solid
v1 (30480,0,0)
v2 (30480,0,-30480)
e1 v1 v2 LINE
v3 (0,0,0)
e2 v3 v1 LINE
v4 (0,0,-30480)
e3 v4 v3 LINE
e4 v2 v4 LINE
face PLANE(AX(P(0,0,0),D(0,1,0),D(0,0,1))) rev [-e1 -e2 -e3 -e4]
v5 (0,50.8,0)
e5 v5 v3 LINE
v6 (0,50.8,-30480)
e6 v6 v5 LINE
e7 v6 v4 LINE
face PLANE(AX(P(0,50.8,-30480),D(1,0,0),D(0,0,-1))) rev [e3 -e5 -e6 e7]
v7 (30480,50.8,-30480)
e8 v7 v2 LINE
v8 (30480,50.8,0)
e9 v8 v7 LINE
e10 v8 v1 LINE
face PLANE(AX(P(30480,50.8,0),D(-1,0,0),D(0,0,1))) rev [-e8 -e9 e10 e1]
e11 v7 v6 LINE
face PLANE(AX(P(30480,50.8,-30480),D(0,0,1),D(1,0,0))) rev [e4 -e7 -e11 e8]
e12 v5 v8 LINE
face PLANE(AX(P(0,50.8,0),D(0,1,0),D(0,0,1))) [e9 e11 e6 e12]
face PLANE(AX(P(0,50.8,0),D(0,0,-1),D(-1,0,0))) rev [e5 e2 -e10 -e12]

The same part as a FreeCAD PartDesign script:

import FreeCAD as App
import Part
import Sketcher
Q = App.Units.Quantity

doc = App.newDocument("Part")
body = doc.addObject("PartDesign::Body", "Body")

# Sketch on XZ plane
sketch1 = body.newObject("Sketcher::SketchObject", "Sketch")
sketch1.AttachmentSupport = (doc.getObject("XZ_Plane"), [""])
sketch1.MapMode = "FlatFace"
sketch1.addGeometry(Part.LineSegment(App.Vector(30480, 0, 0), App.Vector(30480, -30480, 0)), False)
sketch1.addGeometry(Part.LineSegment(App.Vector(30480, -30480, 0), App.Vector(0, -30480, 0)), False)
sketch1.addGeometry(Part.LineSegment(App.Vector(0, -30480, 0), App.Vector(0, 0, 0)), False)
sketch1.addGeometry(Part.LineSegment(App.Vector(0, 0, 0), App.Vector(30480, 0, 0)), False)
sketch1.addConstraint(Sketcher.Constraint("Coincident", 0, 2, 1, 1))
sketch1.addConstraint(Sketcher.Constraint("Coincident", 1, 2, 2, 1))
sketch1.addConstraint(Sketcher.Constraint("Coincident", 2, 2, 3, 1))
sketch1.addConstraint(Sketcher.Constraint("Coincident", 3, 2, 0, 1))
sketch1.addConstraint(Sketcher.Constraint("Vertical", 0))
sketch1.addConstraint(Sketcher.Constraint("Horizontal", 1))
sketch1.addConstraint(Sketcher.Constraint("Vertical", 2))
sketch1.addConstraint(Sketcher.Constraint("Horizontal", 3))
sketch1.addConstraint(Sketcher.Constraint("Coincident", 2, 2, -1, 1))
sketch1.addConstraint(Sketcher.Constraint("Equal", 3, 0))
sketch1.addConstraint(Sketcher.Constraint("DistanceX", 1, 2, 1, 1, Q("1200 in")))
pad1 = body.newObject("PartDesign::Pad", "Pad")
pad1.Profile = sketch1
pad1.Length = Q("2 in")
pad1.Reversed = True

doc.recompute()
